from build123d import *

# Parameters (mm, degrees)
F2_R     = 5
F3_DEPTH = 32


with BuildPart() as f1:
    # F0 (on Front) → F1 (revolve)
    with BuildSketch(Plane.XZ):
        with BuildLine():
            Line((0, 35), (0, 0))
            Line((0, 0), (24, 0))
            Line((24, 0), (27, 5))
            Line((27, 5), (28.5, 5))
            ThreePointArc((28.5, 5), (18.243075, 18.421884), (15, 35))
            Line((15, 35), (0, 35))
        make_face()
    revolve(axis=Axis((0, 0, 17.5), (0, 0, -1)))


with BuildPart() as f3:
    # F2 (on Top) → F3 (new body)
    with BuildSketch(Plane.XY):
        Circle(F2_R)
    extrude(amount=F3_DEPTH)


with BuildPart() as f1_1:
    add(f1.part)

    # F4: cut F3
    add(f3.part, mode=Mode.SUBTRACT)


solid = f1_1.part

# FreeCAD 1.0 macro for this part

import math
import FreeCAD as App
import Part
import Sketcher

V = App.Vector
Q = App.Units.Quantity

doc = App.newDocument("Part")
body = doc.addObject("PartDesign::Body", "Body")

# Sketch on XZ plane
sketch1 = body.newObject("Sketcher::SketchObject", "Sketch")
sketch1.AttachmentSupport = (doc.getObject("XZ_Plane"), [""])
sketch1.MapMode = "FlatFace"
sketch1.addGeometry(Part.LineSegment(V(0, 35, 0), V(0, 0, 0)), False)
sketch1.addGeometry(Part.LineSegment(V(0, 0, 0), V(24, 0, 0)), False)
sketch1.addGeometry(Part.LineSegment(V(24, 0, 0), V(27, 5, 0)), False)
sketch1.addGeometry(Part.LineSegment(V(27, 5, 0), V(28.5, 5, 0)), False)
sketch1.addGeometry(Part.ArcOfCircle(Part.Circle(V(52.1, 33.6, 0), V(0, 0, 1), 37.1), math.radians(178), math.radians(231)), False)
sketch1.addGeometry(Part.LineSegment(V(15, 35, 0), V(0, 35, 0)), False)
sketch1.addConstraint(Sketcher.Constraint("Coincident", 0, 2, 1, 1))
sketch1.addConstraint(Sketcher.Constraint("Coincident", 1, 2, 2, 1))
sketch1.addConstraint(Sketcher.Constraint("Coincident", 2, 2, 3, 1))
sketch1.addConstraint(Sketcher.Constraint("Coincident", 3, 2, 4, 2))
sketch1.addConstraint(Sketcher.Constraint("Coincident", 4, 1, 5, 1))
sketch1.addConstraint(Sketcher.Constraint("Coincident", 5, 2, 0, 1))
sketch1.addConstraint(Sketcher.Constraint("Vertical", 0))
sketch1.addConstraint(Sketcher.Constraint("Horizontal", 1))
sketch1.addConstraint(Sketcher.Constraint("Horizontal", 3))
sketch1.addConstraint(Sketcher.Constraint("Horizontal", 5))
sketch1.addConstraint(Sketcher.Constraint("Coincident", 0, 2, -1, 1))
sketch1.addConstraint(Sketcher.Constraint("DistanceX", 1, 1, 1, 2, Q("24 mm")))
sketch1.addConstraint(Sketcher.Constraint("DistanceX", 5, 2, 5, 1, Q("15 mm")))
sketch1.addConstraint(Sketcher.Constraint("DistanceY", 0, 2, 0, 1, Q("35 mm")))
sketch1.addConstraint(Sketcher.Constraint("DistanceX", 3, 1, 3, 2, Q("1.5 mm")))
sketch1.addConstraint(Sketcher.Constraint("DistanceX", -1, 1, 2, 2, Q("27 mm")))
sketch1.addConstraint(Sketcher.Constraint("DistanceY", -1, 1, 2, 2, Q("5 mm")))
sketch1.addConstraint(Sketcher.Constraint("Radius", 4, Q("37.100615 mm")))
revolution = body.newObject("PartDesign::Revolution", "Revolution")
revolution.Profile = sketch1
revolution.ReferenceAxis = (sketch1, ["V_Axis"])
revolution.Angle = 360
body2 = doc.addObject("PartDesign::Body", "Body001")

# Sketch on XY plane
sketch2 = body2.newObject("Sketcher::SketchObject", "Sketch001")
sketch2.AttachmentSupport = (doc.getObject("XY_Plane001"), [""])
sketch2.MapMode = "FlatFace"
sketch2.addGeometry(Part.Circle(V(0, 0, 0), V(0, 0, 1), 5), False)
sketch2.addConstraint(Sketcher.Constraint("Coincident", 0, 3, -1, 1))
sketch2.addConstraint(Sketcher.Constraint("Diameter", 0, Q("10 mm")))
pad1 = body2.newObject("PartDesign::Pad", "Pad")
pad1.Profile = sketch2
pad1.Length = 32
doc.recompute()

boolean = body.newObject("PartDesign::Boolean", "Boolean")
boolean.Type = "Cut"
boolean.addObjects([body2])

doc.recompute()
